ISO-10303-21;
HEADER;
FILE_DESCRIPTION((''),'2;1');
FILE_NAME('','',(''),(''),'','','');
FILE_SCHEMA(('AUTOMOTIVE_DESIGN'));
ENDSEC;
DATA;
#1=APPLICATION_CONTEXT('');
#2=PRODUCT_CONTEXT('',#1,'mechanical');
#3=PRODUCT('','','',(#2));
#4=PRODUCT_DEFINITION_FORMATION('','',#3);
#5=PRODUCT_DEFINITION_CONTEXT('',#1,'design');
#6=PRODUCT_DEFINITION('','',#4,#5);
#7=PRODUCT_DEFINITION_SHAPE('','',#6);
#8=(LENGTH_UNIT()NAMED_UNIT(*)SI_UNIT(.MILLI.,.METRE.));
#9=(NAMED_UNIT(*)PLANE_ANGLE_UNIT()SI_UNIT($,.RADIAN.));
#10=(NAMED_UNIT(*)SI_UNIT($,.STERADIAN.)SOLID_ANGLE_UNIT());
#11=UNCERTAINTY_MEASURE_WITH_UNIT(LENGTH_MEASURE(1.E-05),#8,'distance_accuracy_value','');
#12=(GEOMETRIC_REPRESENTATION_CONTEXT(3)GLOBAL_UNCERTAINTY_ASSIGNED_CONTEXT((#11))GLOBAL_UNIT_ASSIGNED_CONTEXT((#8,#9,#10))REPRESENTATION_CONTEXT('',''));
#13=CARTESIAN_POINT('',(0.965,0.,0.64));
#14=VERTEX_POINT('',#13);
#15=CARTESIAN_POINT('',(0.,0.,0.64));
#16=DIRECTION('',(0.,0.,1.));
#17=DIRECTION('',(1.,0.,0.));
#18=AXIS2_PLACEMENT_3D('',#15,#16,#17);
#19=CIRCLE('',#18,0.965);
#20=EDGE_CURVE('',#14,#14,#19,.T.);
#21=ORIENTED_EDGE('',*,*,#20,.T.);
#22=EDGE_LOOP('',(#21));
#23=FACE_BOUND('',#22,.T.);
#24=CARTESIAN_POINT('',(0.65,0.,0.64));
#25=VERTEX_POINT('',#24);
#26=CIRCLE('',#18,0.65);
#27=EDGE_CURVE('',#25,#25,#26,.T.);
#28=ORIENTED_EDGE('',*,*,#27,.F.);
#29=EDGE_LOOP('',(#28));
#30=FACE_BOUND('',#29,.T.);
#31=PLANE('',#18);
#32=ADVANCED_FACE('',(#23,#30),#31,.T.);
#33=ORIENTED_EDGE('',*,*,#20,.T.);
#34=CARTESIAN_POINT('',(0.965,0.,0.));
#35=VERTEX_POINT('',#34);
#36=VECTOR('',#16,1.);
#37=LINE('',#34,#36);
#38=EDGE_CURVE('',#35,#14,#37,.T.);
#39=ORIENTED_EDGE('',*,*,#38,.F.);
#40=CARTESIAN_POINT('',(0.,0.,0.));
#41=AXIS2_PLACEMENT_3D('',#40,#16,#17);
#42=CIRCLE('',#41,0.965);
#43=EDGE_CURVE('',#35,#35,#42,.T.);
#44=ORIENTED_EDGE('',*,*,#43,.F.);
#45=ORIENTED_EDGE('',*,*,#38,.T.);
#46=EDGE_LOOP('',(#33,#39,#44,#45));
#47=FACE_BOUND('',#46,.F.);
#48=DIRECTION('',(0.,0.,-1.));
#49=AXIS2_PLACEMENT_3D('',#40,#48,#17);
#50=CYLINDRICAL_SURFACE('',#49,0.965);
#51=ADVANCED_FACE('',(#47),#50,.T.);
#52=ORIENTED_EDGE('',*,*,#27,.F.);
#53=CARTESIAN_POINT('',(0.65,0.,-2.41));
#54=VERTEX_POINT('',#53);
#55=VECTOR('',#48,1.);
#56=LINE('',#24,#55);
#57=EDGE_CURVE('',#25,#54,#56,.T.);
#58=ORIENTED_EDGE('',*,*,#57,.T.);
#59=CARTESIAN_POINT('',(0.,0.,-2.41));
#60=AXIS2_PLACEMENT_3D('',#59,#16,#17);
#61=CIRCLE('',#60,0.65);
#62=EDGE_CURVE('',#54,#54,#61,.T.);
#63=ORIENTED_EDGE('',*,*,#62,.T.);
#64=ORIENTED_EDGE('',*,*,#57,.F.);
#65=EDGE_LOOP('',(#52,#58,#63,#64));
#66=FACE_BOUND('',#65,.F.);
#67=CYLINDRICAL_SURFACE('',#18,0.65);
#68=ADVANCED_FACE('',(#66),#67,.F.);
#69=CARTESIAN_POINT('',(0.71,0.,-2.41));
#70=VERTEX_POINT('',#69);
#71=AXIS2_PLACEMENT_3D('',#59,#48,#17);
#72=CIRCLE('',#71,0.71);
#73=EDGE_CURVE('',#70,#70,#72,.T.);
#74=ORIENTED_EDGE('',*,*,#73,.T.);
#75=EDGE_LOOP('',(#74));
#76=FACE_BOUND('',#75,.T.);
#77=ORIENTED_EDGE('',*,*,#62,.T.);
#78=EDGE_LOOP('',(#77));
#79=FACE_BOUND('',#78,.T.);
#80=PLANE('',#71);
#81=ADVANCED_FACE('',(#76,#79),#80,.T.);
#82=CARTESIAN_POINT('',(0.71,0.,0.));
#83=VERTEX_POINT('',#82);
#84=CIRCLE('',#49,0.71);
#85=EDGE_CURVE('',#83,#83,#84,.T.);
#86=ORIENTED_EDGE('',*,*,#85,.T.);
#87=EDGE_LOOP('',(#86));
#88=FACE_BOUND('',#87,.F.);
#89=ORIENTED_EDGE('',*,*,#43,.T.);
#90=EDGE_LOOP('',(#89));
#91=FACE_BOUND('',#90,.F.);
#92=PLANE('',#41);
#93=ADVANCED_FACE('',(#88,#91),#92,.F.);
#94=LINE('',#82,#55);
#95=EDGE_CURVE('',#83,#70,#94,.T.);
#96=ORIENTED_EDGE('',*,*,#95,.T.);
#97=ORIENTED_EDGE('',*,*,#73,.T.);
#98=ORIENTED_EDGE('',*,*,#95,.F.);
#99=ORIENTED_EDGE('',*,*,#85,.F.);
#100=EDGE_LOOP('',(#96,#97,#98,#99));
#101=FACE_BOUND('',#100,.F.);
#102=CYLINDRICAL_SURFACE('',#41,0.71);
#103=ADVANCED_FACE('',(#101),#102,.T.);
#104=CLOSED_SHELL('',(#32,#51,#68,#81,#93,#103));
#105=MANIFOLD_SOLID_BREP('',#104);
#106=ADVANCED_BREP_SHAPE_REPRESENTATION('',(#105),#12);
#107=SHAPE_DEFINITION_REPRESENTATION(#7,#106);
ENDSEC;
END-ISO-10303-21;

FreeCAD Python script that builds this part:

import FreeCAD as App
import Part
import Sketcher

doc = App.newDocument("Part")
body = doc.addObject("PartDesign::Body", "Body")

# Sketch on XY plane
sketch1 = body.newObject("Sketcher::SketchObject", "Sketch")
sketch1.AttachmentSupport = (doc.getObject("XY_Plane"), [""])
sketch1.MapMode = "FlatFace"
sketch1.addGeometry(Part.Circle(App.Vector(0, 0, 0), App.Vector(0, 0, 1), 0.965), False)
sketch1.addConstraint([
    Sketcher.Constraint("Coincident", 0, 3, -1, 1),
    Sketcher.Constraint("Diameter", 0, 1.93),
])
pad1 = body.newObject("PartDesign::Pad", "Pad")
pad1.Profile = sketch1
pad1.Length = 0.64

# Sketch on XY plane
sketch2 = body.newObject("Sketcher::SketchObject", "Sketch001")
sketch2.AttachmentSupport = (doc.getObject("XY_Plane"), [""])
sketch2.MapMode = "FlatFace"
sketch2.addGeometry(Part.Circle(App.Vector(0, 0, 0), App.Vector(0, 0, 1), 0.71), False)
sketch2.addConstraint([
    Sketcher.Constraint("Coincident", 0, 3, -1, 1),
    Sketcher.Constraint("Diameter", 0, 1.42),
])
pad2 = body.newObject("PartDesign::Pad", "Pad001")
pad2.Profile = sketch2
pad2.Length = 2.41
pad2.Reversed = True

# Sketch on XY plane
sketch3 = body.newObject("Sketcher::SketchObject", "Sketch002")
sketch3.AttachmentSupport = (doc.getObject("XY_Plane"), [""])
sketch3.MapMode = "FlatFace"
sketch3.AttachmentOffset = App.Placement(App.Vector(0, 0, 0.64), App.Rotation())
sketch3.addGeometry(Part.Circle(App.Vector(0, 0, 0), App.Vector(0, 0, 1), 0.65), False)
sketch3.addConstraint([
    Sketcher.Constraint("Coincident", 0, 3, -1, 1),
    Sketcher.Constraint("Diameter", 0, 1.3),
])
pocket1 = body.newObject("PartDesign::Pocket", "Pocket")
pocket1.Profile = sketch3
pocket1.Type = "ThroughAll"

doc.recompute()
